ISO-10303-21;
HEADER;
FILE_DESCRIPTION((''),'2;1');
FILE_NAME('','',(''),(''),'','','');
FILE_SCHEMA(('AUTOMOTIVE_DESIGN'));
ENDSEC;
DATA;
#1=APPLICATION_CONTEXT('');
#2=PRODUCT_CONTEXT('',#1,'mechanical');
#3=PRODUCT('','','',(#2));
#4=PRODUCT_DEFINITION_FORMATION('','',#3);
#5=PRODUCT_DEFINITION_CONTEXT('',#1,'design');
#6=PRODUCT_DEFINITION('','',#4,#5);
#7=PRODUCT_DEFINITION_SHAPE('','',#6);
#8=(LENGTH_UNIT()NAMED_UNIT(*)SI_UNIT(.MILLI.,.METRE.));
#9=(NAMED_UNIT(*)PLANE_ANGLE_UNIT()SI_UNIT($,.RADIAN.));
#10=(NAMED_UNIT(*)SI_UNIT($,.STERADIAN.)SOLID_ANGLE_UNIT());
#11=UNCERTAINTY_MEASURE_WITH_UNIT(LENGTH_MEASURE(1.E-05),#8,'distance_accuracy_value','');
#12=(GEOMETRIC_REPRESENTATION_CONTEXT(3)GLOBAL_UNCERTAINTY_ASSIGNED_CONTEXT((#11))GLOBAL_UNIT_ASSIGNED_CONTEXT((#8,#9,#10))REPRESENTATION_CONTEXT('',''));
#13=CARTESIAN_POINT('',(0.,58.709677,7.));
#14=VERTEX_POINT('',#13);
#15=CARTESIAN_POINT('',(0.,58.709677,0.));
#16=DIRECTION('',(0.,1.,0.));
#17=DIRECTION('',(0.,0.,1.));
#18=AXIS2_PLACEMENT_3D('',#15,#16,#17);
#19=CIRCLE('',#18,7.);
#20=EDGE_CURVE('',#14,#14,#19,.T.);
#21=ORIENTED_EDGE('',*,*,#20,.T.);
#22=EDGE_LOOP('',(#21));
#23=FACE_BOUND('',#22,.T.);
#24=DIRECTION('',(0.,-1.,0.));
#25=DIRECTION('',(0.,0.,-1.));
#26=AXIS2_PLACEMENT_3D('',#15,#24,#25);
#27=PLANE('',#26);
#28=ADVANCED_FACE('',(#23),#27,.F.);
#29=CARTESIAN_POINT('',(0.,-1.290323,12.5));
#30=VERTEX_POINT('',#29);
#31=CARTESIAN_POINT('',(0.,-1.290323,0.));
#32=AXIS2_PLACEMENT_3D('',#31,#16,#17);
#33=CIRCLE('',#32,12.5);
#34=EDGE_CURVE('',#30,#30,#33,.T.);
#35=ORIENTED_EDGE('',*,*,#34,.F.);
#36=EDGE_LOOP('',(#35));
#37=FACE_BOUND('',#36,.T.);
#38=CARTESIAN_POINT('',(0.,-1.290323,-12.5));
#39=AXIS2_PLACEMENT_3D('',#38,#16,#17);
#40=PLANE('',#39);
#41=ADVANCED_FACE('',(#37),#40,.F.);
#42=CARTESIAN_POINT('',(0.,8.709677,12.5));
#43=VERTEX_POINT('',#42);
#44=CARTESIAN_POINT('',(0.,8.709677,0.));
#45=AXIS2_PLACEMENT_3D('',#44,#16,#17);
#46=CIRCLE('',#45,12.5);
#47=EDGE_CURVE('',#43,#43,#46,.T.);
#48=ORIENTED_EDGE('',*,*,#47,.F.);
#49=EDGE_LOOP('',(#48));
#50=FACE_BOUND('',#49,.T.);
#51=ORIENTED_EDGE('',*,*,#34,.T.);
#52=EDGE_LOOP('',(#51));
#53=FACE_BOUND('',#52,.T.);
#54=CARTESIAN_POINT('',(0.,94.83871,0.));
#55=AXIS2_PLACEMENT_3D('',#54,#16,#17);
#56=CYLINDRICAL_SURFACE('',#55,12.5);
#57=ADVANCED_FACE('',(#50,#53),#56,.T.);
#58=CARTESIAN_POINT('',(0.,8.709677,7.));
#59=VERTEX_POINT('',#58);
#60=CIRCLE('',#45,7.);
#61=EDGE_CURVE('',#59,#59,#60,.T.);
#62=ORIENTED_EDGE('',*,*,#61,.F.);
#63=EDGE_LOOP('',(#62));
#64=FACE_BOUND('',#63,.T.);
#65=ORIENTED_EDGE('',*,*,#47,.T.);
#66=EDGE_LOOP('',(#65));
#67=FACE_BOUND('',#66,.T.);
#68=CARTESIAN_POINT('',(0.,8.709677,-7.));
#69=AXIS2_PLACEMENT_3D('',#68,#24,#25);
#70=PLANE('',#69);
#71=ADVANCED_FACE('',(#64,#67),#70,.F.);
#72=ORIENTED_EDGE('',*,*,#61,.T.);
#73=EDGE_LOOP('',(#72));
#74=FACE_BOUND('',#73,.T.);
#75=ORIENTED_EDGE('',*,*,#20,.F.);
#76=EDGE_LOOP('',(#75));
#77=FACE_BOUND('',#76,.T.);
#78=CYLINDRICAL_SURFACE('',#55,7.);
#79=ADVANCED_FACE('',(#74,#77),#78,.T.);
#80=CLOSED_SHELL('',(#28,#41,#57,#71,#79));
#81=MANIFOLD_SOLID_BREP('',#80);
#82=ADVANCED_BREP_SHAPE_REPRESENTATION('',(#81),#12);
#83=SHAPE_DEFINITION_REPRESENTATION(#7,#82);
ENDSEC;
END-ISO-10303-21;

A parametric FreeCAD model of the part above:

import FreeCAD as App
import Part
import Sketcher


def add_polygon(sketch, points):
    """Adds a closed chain of lines whose ends are joined by coincident constraints."""
    first, n = sketch.GeometryCount, len(points)
    for a, b in zip(points, points[1:] + points[:1]):
        sketch.addGeometry(Part.LineSegment(App.Vector(*a, 0), App.Vector(*b, 0)), False)
    for i in range(n):
        sketch.addConstraint(Sketcher.Constraint("Coincident", first + i, 2, first + (i + 1) % n, 1))

doc = App.newDocument("Part")
body = doc.addObject("PartDesign::Body", "Body")

# Sketch on YZ plane
sketch1 = body.newObject("Sketcher::SketchObject", "Sketch")
sketch1.AttachmentSupport = (doc.getObject("YZ_Plane"), [""])
sketch1.MapMode = "FlatFace"
add_polygon(sketch1, [(59, -7), (59, 0), (-1, 0), (-1, -12), (9, -12), (9, -7)])  # lines 0-5
sketch1.addConstraint([
    Sketcher.Constraint("Vertical", 0),
    Sketcher.Constraint("Horizontal", 1),
    Sketcher.Constraint("Vertical", 2),
    Sketcher.Constraint("Horizontal", 3),
    Sketcher.Constraint("Vertical", 4),
    Sketcher.Constraint("Horizontal", 5),
    Sketcher.Constraint("PointOnObject", 0, 2, -1),
    Sketcher.Constraint("DistanceX", 1, 2, 1, 1, 60.0),
    Sketcher.Constraint("DistanceX", 3, 1, 3, 2, 10.0),
    Sketcher.Constraint("DistanceY", 0, 1, 0, 2, 7.0),
    Sketcher.Constraint("DistanceY", 2, 2, 2, 1, 12.5),
    Sketcher.Constraint("DistanceX", -1, 1, 0, 2, 58.709677),
])
revolution = body.newObject("PartDesign::Revolution", "Revolution")
revolution.Profile = sketch1
revolution.ReferenceAxis = (sketch1, ["H_Axis"])
revolution.Angle = 360

doc.recompute()
